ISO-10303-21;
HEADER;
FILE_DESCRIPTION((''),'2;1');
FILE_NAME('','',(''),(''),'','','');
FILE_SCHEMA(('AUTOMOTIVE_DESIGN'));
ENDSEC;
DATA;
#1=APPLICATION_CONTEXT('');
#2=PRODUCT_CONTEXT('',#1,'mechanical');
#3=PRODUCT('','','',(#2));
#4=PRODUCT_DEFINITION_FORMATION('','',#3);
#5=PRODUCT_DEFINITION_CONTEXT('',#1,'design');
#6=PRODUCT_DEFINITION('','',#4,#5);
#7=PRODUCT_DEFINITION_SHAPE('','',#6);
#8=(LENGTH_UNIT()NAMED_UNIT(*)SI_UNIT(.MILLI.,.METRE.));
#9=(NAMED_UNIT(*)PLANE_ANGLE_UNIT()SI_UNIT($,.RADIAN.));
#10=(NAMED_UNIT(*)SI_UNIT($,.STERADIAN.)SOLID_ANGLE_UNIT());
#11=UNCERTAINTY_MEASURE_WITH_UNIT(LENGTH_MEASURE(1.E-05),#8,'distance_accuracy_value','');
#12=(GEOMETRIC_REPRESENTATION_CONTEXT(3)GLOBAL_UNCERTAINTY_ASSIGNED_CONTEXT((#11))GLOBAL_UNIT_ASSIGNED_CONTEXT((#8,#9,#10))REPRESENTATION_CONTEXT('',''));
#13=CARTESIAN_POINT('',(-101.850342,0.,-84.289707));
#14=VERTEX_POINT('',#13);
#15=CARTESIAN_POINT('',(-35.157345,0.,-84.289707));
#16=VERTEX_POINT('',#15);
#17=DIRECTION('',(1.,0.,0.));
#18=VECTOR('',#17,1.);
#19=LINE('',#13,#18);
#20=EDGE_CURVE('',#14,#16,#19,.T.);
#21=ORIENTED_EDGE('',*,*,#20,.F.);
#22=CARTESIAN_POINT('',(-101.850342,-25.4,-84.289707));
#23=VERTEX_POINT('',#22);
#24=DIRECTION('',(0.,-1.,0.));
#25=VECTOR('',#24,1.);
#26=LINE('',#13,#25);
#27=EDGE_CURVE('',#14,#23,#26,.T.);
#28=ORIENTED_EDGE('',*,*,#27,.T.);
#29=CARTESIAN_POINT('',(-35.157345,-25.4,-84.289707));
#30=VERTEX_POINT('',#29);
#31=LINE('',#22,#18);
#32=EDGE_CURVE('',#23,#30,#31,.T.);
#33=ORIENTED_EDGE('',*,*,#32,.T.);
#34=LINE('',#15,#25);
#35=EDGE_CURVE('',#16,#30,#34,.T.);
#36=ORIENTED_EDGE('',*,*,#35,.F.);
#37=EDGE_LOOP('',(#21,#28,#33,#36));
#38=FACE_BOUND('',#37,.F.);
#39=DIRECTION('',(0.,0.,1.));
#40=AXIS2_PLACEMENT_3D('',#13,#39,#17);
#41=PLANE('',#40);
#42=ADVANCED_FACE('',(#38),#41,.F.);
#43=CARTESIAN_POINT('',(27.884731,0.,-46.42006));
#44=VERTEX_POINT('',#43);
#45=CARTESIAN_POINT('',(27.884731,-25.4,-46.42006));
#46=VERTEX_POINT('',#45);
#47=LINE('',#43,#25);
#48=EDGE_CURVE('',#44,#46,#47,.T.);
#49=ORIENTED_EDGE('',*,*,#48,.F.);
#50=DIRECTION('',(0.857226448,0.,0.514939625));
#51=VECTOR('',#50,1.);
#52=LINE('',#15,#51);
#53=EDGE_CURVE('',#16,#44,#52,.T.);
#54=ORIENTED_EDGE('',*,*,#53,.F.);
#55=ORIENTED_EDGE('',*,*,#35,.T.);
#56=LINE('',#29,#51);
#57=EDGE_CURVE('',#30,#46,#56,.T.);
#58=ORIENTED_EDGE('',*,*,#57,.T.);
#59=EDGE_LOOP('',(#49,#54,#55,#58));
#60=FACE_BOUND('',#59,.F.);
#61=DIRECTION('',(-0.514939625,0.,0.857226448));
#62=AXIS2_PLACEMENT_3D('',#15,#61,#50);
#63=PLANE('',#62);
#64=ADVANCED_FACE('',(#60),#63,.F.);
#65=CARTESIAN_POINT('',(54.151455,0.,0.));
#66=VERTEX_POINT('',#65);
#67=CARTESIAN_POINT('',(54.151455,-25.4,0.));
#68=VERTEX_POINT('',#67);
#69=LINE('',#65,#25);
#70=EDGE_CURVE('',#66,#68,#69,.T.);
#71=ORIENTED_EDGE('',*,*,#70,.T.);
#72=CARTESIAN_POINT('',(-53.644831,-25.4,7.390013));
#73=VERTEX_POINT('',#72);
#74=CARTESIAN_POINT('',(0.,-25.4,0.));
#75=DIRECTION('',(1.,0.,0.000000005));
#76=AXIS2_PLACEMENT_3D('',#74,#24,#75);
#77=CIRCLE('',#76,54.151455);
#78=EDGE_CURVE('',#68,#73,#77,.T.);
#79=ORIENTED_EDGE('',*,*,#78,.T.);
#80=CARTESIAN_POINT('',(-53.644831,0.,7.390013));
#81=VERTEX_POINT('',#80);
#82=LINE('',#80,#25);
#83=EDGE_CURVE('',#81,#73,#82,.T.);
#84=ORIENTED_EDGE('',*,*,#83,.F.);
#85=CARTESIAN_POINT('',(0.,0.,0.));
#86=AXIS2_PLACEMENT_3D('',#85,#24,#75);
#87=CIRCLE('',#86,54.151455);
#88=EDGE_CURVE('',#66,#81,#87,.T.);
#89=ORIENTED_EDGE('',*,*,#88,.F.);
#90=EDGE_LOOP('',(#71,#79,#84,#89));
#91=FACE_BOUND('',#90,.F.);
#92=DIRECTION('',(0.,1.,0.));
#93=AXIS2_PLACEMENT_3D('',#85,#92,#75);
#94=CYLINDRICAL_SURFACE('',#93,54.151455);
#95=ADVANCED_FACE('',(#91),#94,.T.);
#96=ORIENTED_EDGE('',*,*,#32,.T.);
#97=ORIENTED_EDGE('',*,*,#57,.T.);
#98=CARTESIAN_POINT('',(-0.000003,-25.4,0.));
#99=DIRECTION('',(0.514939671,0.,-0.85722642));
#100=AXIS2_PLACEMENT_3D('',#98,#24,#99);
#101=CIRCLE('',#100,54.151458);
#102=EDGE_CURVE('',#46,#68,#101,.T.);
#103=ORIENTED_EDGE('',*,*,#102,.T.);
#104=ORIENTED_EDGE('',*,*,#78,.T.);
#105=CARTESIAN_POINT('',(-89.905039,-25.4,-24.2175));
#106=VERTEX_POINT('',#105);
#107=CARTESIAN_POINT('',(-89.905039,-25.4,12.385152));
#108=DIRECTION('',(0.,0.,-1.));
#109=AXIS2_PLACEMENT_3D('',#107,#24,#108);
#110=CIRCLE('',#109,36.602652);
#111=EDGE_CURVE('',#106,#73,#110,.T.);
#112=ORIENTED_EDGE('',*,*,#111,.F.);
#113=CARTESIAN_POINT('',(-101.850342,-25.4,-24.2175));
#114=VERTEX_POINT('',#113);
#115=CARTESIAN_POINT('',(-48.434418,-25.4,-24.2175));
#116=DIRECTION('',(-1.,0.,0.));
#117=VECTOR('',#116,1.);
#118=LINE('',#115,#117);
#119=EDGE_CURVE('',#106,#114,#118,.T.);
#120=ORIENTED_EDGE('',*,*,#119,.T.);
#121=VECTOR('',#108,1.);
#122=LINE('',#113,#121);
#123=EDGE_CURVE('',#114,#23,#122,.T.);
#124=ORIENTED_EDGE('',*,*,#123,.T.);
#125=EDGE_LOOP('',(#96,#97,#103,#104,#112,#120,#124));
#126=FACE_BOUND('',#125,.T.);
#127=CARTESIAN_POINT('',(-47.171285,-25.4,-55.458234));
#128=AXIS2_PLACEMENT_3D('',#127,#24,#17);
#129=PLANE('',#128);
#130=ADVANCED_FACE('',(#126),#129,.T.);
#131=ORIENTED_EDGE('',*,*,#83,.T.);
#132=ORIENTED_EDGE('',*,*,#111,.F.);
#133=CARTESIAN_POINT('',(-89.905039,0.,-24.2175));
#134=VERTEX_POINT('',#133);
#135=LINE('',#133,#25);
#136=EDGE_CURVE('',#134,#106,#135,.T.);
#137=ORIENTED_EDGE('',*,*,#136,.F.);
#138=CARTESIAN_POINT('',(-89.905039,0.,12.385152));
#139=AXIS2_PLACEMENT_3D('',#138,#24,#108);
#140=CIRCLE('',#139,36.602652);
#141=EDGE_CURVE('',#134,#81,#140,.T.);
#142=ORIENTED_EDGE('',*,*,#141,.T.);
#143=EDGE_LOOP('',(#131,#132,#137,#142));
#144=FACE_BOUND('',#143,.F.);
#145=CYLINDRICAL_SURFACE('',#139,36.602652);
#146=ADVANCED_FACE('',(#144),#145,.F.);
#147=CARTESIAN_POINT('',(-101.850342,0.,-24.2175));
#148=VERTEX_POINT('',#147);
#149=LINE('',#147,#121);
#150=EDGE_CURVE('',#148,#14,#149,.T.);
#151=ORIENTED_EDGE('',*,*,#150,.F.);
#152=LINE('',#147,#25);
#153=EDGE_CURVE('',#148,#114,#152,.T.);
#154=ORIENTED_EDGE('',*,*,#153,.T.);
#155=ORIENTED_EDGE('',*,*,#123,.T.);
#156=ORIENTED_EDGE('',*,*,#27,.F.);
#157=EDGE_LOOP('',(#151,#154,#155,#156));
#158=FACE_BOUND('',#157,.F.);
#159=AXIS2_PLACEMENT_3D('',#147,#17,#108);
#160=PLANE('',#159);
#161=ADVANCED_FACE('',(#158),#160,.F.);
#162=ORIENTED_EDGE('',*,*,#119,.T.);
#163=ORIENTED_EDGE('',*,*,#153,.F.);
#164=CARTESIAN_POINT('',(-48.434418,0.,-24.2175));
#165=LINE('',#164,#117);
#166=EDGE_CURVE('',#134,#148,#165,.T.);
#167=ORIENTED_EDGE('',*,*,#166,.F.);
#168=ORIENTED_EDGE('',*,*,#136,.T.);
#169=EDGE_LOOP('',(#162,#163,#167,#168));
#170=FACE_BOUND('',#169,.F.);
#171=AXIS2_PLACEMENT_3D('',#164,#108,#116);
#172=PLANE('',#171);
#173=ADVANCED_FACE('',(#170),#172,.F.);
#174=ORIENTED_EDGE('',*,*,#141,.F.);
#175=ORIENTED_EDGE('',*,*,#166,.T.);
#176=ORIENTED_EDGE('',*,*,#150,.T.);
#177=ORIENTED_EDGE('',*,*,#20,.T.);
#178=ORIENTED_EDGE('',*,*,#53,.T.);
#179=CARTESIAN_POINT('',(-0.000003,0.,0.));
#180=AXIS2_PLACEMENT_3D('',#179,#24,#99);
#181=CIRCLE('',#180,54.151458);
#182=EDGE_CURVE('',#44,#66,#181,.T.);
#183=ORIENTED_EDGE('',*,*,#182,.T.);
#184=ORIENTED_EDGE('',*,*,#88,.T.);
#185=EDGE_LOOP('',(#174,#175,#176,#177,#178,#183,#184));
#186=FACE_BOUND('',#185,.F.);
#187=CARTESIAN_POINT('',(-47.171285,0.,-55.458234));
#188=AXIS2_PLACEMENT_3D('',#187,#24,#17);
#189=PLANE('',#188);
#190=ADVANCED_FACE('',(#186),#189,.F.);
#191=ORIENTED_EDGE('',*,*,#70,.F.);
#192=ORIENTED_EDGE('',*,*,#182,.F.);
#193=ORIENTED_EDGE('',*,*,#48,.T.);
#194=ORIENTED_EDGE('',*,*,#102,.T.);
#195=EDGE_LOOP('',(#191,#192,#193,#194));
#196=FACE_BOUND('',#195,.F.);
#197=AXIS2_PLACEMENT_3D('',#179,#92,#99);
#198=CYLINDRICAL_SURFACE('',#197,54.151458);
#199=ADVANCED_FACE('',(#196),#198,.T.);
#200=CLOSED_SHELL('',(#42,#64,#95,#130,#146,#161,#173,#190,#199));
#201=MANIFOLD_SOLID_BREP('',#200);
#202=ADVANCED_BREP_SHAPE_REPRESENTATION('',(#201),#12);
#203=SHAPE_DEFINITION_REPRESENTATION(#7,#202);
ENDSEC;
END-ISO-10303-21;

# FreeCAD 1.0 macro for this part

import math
import FreeCAD as App
import Part
import Sketcher
Q = App.Units.Quantity


def edges_at(feature, points):
    """Names of the edges that pass closest to the given points."""
    edges = feature.Shape.Edges
    near = lambda p: min(range(len(edges)), key=lambda i: edges[i].distToShape(Part.Vertex(*p))[0])
    return sorted({f"Edge{near(p) + 1}" for p in points})

doc = App.newDocument("Part")
body = doc.addObject("PartDesign::Body", "Body")

# Sketch on XZ plane
sketch1 = body.newObject("Sketcher::SketchObject", "Sketch")
sketch1.AttachmentSupport = (doc.getObject("XZ_Plane"), [""])
sketch1.MapMode = "FlatFace"
sketch1.addGeometry([
    Part.LineSegment(App.Vector(-48, -24, 0), App.Vector(-102, -24, 0)),  # 0
    Part.LineSegment(App.Vector(-102, -24, 0), App.Vector(-102, -84, 0)),  # 1
    Part.LineSegment(App.Vector(-102, -84, 0), App.Vector(-35, -84, 0)),  # 2
    Part.LineSegment(App.Vector(-35, -84, 0), App.Vector(28, -46, 0)),  # 3
    Part.ArcOfCircle(Part.Circle(App.Vector(0, 0, 0), App.Vector(0, 0, 1), 54), math.radians(-59), math.radians(0)),  # 4
    Part.ArcOfCircle(Part.Circle(App.Vector(0, 0, 0), App.Vector(0, 0, 1), 54), math.radians(0), math.radians(207)),  # 5
], False)
sketch1.addConstraint([
    Sketcher.Constraint("Coincident", 0, 2, 1, 1),
    Sketcher.Constraint("Coincident", 1, 2, 2, 1),
    Sketcher.Constraint("Coincident", 2, 2, 3, 1),
    Sketcher.Constraint("Tangent", 3, 2, 4, 1),
    Sketcher.Constraint("Tangent", 4, 2, 5, 1),
    Sketcher.Constraint("Coincident", 5, 2, 0, 1),
    Sketcher.Constraint("Horizontal", 0),
    Sketcher.Constraint("Vertical", 1),
    Sketcher.Constraint("Horizontal", 2),
    Sketcher.Constraint("Coincident", 4, 3, -1, 1),
    Sketcher.Constraint("PointOnObject", 4, 2, -1),
    Sketcher.Constraint("Radius", 4, Q("54.151458 mm")),
    Sketcher.Constraint("Radius", 5, Q("54.151455 mm")),
    Sketcher.Constraint("DistanceY", 0, 2, -1, 1, Q("24.2175 mm")),
    Sketcher.Constraint("DistanceX", 2, 2, 4, 2, Q("89.3088 mm")),
    Sketcher.Constraint("DistanceX", 0, 2, 0, 1, Q("53.415924 mm")),
    Sketcher.Constraint("DistanceY", 1, 2, 1, 1, Q("60.072207 mm")),
])
pad1 = body.newObject("PartDesign::Pad", "Pad")
pad1.Profile = sketch1
pad1.Length = Q("1 in")
doc.recompute()

fillet = body.newObject("PartDesign::Fillet", "Fillet")
fillet.Base = (pad1, edges_at(pad1, [(-48.434, -12.7, -24.218)]))
fillet.Radius = 36.602652

doc.recompute()
